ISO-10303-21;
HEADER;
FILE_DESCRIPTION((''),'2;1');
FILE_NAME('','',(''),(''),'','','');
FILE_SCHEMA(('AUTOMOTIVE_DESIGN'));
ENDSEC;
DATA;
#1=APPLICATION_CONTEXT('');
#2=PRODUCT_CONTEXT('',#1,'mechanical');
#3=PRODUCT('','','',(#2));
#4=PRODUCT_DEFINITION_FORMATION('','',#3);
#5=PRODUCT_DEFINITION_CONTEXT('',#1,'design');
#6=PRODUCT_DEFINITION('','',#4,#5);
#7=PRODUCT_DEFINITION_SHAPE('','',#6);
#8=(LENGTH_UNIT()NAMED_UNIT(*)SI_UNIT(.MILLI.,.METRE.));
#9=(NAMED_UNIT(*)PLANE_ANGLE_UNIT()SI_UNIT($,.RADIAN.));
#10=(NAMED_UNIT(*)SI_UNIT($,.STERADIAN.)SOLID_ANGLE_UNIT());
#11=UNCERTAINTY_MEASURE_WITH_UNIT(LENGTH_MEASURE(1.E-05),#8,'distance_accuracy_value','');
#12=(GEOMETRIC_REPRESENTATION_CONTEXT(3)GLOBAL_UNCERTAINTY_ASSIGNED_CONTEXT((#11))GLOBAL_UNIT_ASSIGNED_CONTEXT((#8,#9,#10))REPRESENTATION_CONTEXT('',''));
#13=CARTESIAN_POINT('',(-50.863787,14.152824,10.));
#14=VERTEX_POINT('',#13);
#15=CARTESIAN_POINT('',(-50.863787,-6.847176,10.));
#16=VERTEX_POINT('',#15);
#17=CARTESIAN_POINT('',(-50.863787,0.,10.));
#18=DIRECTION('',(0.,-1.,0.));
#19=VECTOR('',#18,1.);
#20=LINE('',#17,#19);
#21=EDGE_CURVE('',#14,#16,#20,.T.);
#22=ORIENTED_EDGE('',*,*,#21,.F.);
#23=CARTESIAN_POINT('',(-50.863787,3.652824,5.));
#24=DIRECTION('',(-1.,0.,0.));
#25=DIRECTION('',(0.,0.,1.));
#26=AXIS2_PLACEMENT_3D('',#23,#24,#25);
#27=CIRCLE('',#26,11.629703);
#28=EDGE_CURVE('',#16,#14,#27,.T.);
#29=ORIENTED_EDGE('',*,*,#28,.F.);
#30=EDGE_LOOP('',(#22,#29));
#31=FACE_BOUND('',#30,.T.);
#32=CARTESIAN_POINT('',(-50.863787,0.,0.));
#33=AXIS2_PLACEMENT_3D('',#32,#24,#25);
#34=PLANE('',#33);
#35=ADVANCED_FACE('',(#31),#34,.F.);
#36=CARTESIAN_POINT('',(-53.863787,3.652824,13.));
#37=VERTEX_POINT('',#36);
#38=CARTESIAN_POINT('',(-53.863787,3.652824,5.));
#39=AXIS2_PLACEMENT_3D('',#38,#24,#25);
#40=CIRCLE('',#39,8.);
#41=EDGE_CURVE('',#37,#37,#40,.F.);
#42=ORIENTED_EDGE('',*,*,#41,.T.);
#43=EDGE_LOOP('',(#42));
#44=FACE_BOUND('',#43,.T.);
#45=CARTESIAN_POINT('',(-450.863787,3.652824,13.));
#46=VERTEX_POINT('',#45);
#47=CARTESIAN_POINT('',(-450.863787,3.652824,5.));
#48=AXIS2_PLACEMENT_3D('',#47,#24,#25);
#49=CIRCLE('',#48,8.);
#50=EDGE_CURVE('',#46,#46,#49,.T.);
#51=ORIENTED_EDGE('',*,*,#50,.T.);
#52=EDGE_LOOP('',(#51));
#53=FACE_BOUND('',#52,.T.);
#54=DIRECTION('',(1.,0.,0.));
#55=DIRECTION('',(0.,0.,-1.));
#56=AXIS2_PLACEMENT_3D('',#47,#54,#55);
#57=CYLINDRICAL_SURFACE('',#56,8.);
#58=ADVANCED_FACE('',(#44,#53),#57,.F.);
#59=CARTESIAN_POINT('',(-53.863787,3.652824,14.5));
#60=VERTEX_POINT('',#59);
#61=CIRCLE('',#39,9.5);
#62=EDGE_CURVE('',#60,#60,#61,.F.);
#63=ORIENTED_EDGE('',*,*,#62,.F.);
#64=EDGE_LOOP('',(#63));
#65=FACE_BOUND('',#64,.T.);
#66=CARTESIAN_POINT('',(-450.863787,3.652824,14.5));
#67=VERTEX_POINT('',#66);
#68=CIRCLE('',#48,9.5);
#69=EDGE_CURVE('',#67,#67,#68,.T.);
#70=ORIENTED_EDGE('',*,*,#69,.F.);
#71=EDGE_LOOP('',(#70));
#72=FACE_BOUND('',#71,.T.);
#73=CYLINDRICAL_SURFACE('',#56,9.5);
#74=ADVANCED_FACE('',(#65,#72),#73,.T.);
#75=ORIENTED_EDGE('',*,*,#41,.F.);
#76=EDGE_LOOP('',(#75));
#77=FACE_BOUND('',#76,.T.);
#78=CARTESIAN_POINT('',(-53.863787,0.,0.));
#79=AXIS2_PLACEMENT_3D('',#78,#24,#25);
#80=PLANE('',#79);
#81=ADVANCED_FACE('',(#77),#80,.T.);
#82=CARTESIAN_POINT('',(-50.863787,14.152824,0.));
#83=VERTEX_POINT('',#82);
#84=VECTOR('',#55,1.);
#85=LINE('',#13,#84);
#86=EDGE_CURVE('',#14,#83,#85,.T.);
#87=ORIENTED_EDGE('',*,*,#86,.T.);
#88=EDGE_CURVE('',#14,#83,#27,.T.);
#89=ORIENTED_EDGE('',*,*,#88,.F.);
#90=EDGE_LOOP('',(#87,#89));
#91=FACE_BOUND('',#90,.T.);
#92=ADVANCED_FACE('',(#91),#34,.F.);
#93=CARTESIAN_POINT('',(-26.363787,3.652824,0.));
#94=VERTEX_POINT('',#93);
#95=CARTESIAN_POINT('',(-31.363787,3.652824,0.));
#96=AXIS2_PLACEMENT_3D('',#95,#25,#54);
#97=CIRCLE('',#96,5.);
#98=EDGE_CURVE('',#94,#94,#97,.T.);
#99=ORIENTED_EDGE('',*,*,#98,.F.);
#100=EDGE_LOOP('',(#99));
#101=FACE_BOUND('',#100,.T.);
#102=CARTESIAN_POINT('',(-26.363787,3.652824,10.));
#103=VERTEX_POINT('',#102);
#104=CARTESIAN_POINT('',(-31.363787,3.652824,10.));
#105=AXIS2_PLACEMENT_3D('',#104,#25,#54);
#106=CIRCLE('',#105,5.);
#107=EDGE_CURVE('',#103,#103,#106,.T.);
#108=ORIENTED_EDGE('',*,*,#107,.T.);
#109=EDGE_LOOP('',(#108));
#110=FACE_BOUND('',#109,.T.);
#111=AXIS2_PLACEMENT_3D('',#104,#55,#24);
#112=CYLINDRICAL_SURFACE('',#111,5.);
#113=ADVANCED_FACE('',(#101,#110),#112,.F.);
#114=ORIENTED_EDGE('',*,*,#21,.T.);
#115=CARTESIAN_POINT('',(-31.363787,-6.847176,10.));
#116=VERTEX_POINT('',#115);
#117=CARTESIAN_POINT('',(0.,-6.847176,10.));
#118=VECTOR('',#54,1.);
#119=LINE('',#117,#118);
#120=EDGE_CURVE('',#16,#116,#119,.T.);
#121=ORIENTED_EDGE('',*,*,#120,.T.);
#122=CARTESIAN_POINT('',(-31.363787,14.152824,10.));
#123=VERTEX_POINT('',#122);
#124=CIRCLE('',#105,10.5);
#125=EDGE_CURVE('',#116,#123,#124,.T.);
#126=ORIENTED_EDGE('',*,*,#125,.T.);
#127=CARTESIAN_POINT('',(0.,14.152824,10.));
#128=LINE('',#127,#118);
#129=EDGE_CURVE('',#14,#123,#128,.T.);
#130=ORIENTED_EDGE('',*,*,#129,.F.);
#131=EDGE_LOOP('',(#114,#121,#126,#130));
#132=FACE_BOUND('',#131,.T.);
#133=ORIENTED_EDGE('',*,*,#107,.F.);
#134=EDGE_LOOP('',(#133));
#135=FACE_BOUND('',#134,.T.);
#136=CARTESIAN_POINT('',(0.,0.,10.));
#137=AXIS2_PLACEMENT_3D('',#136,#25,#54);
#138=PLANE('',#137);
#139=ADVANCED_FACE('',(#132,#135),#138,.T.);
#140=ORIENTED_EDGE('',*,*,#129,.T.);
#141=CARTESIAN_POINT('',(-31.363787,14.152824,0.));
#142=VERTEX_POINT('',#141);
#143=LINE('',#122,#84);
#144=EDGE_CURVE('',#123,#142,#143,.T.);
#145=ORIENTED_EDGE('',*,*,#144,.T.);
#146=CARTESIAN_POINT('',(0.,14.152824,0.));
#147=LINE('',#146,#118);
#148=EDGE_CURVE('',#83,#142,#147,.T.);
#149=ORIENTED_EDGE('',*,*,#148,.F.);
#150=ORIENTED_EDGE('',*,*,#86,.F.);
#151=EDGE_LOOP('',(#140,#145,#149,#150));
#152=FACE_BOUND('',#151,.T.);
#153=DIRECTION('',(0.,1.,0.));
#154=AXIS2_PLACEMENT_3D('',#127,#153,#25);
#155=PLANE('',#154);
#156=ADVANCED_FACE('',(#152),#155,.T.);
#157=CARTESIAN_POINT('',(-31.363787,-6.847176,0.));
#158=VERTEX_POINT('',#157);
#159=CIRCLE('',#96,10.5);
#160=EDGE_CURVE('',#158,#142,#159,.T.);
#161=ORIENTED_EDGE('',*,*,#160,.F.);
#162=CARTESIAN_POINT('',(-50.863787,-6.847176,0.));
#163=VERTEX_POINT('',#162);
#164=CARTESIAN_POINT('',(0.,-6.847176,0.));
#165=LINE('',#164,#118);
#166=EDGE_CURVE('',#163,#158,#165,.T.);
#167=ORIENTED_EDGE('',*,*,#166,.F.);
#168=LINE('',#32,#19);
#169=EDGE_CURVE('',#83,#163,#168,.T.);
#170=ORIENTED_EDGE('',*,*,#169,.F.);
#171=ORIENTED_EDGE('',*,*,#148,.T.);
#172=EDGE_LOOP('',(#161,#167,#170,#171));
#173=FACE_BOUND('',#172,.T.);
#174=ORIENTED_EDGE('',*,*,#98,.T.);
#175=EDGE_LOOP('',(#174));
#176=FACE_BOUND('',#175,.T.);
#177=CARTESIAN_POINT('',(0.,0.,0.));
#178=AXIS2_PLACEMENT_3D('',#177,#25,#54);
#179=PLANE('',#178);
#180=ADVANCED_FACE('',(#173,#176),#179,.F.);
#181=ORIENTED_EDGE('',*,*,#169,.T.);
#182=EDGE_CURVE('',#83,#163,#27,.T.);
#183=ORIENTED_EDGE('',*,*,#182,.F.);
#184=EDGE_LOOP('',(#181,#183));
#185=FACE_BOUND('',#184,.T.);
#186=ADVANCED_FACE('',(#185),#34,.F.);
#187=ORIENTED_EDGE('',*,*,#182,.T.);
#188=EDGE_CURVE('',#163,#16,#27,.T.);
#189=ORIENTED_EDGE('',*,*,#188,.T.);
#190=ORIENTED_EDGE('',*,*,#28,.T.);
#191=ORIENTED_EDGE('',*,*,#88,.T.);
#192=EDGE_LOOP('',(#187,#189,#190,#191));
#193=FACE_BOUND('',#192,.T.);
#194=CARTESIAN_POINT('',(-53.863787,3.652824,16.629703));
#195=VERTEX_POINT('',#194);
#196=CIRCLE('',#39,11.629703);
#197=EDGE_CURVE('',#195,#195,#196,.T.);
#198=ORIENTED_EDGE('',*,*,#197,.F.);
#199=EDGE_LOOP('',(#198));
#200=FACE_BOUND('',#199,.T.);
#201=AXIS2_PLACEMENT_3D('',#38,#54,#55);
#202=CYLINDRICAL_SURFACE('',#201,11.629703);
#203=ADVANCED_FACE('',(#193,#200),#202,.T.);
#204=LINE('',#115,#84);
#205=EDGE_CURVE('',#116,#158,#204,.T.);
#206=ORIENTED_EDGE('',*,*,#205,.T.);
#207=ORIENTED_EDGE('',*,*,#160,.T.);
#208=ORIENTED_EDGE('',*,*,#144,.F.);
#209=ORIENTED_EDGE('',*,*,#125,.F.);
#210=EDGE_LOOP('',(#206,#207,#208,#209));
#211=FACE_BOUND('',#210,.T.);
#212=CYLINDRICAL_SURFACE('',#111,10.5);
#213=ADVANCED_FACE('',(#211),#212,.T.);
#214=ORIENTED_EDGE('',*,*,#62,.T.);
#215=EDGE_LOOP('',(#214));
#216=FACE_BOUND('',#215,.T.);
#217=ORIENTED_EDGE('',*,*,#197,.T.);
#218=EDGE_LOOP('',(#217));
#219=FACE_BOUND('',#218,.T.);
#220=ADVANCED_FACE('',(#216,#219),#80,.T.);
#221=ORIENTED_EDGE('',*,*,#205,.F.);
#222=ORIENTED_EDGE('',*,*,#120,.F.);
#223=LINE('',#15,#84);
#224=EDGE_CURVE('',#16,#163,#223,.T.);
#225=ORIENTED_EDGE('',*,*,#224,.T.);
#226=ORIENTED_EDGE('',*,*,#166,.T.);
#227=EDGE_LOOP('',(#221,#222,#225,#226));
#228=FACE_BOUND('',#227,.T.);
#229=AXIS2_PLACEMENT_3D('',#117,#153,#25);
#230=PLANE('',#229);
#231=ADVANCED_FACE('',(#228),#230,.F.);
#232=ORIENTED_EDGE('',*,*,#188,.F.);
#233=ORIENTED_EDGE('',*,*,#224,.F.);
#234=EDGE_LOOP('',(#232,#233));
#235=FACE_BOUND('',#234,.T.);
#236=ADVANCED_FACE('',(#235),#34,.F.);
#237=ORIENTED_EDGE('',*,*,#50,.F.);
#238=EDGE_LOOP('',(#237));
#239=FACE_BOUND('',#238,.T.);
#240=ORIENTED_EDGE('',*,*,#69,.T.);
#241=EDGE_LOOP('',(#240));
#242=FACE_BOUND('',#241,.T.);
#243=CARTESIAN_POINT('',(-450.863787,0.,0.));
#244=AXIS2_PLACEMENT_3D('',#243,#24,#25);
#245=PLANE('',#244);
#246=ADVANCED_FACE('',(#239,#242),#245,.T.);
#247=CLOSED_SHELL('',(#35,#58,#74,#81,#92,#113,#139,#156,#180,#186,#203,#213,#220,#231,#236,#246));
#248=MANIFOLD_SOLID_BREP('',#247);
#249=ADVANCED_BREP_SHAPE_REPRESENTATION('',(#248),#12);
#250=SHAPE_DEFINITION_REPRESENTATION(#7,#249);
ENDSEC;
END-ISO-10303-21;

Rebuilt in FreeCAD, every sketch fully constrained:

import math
import FreeCAD as App
import Part
import Sketcher

V = App.Vector

doc = App.newDocument("Part")
body = doc.addObject("PartDesign::Body", "Body")

# Sketch on XY plane
sketch1 = doc.addObject("Sketcher::SketchObject", "Sketch")
body.addObject(sketch1)
sketch1.AttachmentSupport = (doc.XY_Plane, [""])
sketch1.MapMode = "FlatFace"
sketch1.addGeometry([
    Part.LineSegment(V(-31, 14, 0), V(-51, 14, 0)),  # 0
    Part.LineSegment(V(-51, 14, 0), V(-51, -7, 0)),  # 1
    Part.LineSegment(V(-51, -7, 0), V(-31, -7, 0)),  # 2
    Part.ArcOfCircle(Part.Circle(V(-31, 4, 0), V(0, 0, 1), 10), math.radians(-90), math.radians(90)),  # 3
    Part.Circle(V(-31, 4, 0), V(0, 0, 1), 5),  # 4
], False)
sketch1.addConstraint([
    Sketcher.Constraint("Coincident", 0, 2, 1, 1),
    Sketcher.Constraint("Coincident", 1, 2, 2, 1),
    Sketcher.Constraint("Tangent", 2, 2, 3, 1),
    Sketcher.Constraint("Tangent", 3, 2, 0, 1),
    Sketcher.Constraint("Horizontal", 0),
    Sketcher.Constraint("Vertical", 1),
    Sketcher.Constraint("Horizontal", 2),
    Sketcher.Constraint("Coincident", 4, 3, 3, 3),
    Sketcher.Constraint("Diameter", 4, 10.0),
    Sketcher.Constraint("Radius", 3, 10.5),
    Sketcher.Constraint("DistanceX", 0, 2, 0, 1, 19.5),
    Sketcher.Constraint("DistanceX", 3, 3, -1, 1, 31.363787),
    Sketcher.Constraint("DistanceY", -1, 1, 3, 3, 3.652824),
])
pad1 = doc.addObject("PartDesign::Pad", "Pad")
body.addObject(pad1)
pad1.Profile = sketch1
pad1.Length = 10

# Sketch on YZ plane
sketch2 = doc.addObject("Sketcher::SketchObject", "Sketch001")
body.addObject(sketch2)
sketch2.AttachmentSupport = (doc.YZ_Plane, [""])
sketch2.MapMode = "FlatFace"
sketch2.AttachmentOffset = App.Placement(V(0, 0, -50.863787), App.Rotation())
sketch2.addGeometry(Part.Circle(V(4, 5, 0), V(0, 0, 1), 12), False)
sketch2.addConstraint([
    Sketcher.Constraint("DistanceY", -1, 1, 0, 3, 5.0),
    Sketcher.Constraint("Diameter", 0, 23.259407),
    Sketcher.Constraint("DistanceX", -1, 1, 0, 3, 3.652824),
])
pad2 = doc.addObject("PartDesign::Pad", "Pad001")
body.addObject(pad2)
pad2.Profile = sketch2
pad2.Length = 3
pad2.Reversed = True

# Sketch on YZ plane
sketch3 = doc.addObject("Sketcher::SketchObject", "Sketch002")
body.addObject(sketch3)
sketch3.AttachmentSupport = (doc.YZ_Plane, [""])
sketch3.MapMode = "FlatFace"
sketch3.AttachmentOffset = App.Placement(V(0, 0, -50.863787), App.Rotation())
sketch3.addGeometry([
    Part.ArcOfCircle(Part.Circle(V(4, 5, 0), V(0, 0, 1), 9), math.radians(180), math.radians(212)),  # 0
    Part.ArcOfCircle(Part.Circle(V(4, 5, 0), V(0, 0, 1), 9), math.radians(148), math.radians(180)),  # 1
    Part.ArcOfCircle(Part.Circle(V(4, 5, 0), V(0, 0, 1), 10), math.radians(90), math.radians(148)),  # 2
    Part.ArcOfCircle(Part.Circle(V(4, 5, 0), V(0, 0, 1), 10), math.radians(32), math.radians(90)),  # 3
    Part.ArcOfCircle(Part.Circle(V(4, 5, 0), V(0, 0, 1), 10), math.radians(0), math.radians(32)),  # 4
    Part.ArcOfCircle(Part.Circle(V(4, 5, 0), V(0, 0, 1), 10), math.radians(-32), math.radians(0)),  # 5
    Part.ArcOfCircle(Part.Circle(V(4, 5, 0), V(0, 0, 1), 10), math.radians(-148), math.radians(-32)),  # 6
    Part.ArcOfCircle(Part.Circle(V(4, 5, 0), V(0, 0, 1), 8), math.radians(90), math.radians(141)),  # 7
    Part.ArcOfCircle(Part.Circle(V(4, 5, 0), V(0, 0, 1), 8), math.radians(141), math.radians(180)),  # 8
    Part.ArcOfCircle(Part.Circle(V(4, 5, 0), V(0, 0, 1), 8), math.radians(-180), math.radians(-141)),  # 9
    Part.ArcOfCircle(Part.Circle(V(4, 5, 0), V(0, 0, 1), 8), math.radians(-141), math.radians(-39)),  # 10
    Part.ArcOfCircle(Part.Circle(V(4, 5, 0), V(0, 0, 1), 8), math.radians(-39), math.radians(0)),  # 11
    Part.ArcOfCircle(Part.Circle(V(4, 5, 0), V(0, 0, 1), 8), math.radians(0), math.radians(39)),  # 12
    Part.ArcOfCircle(Part.Circle(V(4, 5, 0), V(0, 0, 1), 8), math.radians(39), math.radians(90)),  # 13
], False)
sketch3.addConstraint([
    Sketcher.Constraint("Tangent", 0, 1, 1, 2),
    Sketcher.Constraint("Tangent", 1, 1, 2, 2),
    Sketcher.Constraint("Tangent", 2, 1, 3, 2),
    Sketcher.Constraint("Tangent", 3, 1, 4, 2),
    Sketcher.Constraint("Tangent", 4, 1, 5, 2),
    Sketcher.Constraint("Tangent", 5, 1, 6, 2),
    Sketcher.Constraint("Tangent", 6, 1, 0, 2),
    Sketcher.Constraint("Tangent", 7, 2, 8, 1),
    Sketcher.Constraint("Tangent", 8, 2, 9, 1),
    Sketcher.Constraint("Tangent", 9, 2, 10, 1),
    Sketcher.Constraint("Tangent", 10, 2, 11, 1),
    Sketcher.Constraint("Tangent", 11, 2, 12, 1),
    Sketcher.Constraint("Tangent", 12, 2, 13, 1),
    Sketcher.Constraint("Tangent", 13, 2, 7, 1),
    Sketcher.Constraint("Coincident", 2, 3, 0, 3),
    Sketcher.Constraint("Coincident", 4, 3, 0, 3),
    Sketcher.Constraint("Coincident", 7, 3, 0, 3),
    Sketcher.Constraint("Coincident", 9, 3, 0, 3),
    Sketcher.Constraint("Coincident", 11, 3, 0, 3),
    Sketcher.Constraint("PointOnObject", 5, 1, -1),
    Sketcher.Constraint("PointOnObject", 6, 1, -1),
    Sketcher.Constraint("PointOnObject", 9, 2, -1),
    Sketcher.Constraint("PointOnObject", 10, 2, -1),
    Sketcher.Constraint("Horizontal", 13, 3, 0, 1),
    Sketcher.Constraint("Horizontal", 1, 1, 3, 1),
    Sketcher.Constraint("Horizontal", 0, 1, 4, 1),
    Sketcher.Constraint("Horizontal", 3, 1, 7, 2),
    Sketcher.Constraint("Horizontal", 4, 1, 8, 2),
    Sketcher.Constraint("Horizontal", 8, 2, 11, 2),
    Sketcher.Constraint("Horizontal", 7, 2, 12, 2),
    Sketcher.Constraint("Vertical", 13, 3, 2, 1),
    Sketcher.Constraint("Vertical", 3, 1, 5, 1),
    Sketcher.Constraint("Vertical", 2, 1, 13, 2),
    Sketcher.Constraint("Radius", 7, 8.0),
    Sketcher.Constraint("Radius", 0, 9.5),
    Sketcher.Constraint("DistanceY", -1, 1, 0, 3, 5.0),
    Sketcher.Constraint("DistanceX", -1, 1, 3, 1, 11.730571),
])
pad3 = doc.addObject("PartDesign::Pad", "Pad002")
body.addObject(pad3)
pad3.Profile = sketch3
pad3.Length = 400
pad3.Reversed = True

doc.recompute()
